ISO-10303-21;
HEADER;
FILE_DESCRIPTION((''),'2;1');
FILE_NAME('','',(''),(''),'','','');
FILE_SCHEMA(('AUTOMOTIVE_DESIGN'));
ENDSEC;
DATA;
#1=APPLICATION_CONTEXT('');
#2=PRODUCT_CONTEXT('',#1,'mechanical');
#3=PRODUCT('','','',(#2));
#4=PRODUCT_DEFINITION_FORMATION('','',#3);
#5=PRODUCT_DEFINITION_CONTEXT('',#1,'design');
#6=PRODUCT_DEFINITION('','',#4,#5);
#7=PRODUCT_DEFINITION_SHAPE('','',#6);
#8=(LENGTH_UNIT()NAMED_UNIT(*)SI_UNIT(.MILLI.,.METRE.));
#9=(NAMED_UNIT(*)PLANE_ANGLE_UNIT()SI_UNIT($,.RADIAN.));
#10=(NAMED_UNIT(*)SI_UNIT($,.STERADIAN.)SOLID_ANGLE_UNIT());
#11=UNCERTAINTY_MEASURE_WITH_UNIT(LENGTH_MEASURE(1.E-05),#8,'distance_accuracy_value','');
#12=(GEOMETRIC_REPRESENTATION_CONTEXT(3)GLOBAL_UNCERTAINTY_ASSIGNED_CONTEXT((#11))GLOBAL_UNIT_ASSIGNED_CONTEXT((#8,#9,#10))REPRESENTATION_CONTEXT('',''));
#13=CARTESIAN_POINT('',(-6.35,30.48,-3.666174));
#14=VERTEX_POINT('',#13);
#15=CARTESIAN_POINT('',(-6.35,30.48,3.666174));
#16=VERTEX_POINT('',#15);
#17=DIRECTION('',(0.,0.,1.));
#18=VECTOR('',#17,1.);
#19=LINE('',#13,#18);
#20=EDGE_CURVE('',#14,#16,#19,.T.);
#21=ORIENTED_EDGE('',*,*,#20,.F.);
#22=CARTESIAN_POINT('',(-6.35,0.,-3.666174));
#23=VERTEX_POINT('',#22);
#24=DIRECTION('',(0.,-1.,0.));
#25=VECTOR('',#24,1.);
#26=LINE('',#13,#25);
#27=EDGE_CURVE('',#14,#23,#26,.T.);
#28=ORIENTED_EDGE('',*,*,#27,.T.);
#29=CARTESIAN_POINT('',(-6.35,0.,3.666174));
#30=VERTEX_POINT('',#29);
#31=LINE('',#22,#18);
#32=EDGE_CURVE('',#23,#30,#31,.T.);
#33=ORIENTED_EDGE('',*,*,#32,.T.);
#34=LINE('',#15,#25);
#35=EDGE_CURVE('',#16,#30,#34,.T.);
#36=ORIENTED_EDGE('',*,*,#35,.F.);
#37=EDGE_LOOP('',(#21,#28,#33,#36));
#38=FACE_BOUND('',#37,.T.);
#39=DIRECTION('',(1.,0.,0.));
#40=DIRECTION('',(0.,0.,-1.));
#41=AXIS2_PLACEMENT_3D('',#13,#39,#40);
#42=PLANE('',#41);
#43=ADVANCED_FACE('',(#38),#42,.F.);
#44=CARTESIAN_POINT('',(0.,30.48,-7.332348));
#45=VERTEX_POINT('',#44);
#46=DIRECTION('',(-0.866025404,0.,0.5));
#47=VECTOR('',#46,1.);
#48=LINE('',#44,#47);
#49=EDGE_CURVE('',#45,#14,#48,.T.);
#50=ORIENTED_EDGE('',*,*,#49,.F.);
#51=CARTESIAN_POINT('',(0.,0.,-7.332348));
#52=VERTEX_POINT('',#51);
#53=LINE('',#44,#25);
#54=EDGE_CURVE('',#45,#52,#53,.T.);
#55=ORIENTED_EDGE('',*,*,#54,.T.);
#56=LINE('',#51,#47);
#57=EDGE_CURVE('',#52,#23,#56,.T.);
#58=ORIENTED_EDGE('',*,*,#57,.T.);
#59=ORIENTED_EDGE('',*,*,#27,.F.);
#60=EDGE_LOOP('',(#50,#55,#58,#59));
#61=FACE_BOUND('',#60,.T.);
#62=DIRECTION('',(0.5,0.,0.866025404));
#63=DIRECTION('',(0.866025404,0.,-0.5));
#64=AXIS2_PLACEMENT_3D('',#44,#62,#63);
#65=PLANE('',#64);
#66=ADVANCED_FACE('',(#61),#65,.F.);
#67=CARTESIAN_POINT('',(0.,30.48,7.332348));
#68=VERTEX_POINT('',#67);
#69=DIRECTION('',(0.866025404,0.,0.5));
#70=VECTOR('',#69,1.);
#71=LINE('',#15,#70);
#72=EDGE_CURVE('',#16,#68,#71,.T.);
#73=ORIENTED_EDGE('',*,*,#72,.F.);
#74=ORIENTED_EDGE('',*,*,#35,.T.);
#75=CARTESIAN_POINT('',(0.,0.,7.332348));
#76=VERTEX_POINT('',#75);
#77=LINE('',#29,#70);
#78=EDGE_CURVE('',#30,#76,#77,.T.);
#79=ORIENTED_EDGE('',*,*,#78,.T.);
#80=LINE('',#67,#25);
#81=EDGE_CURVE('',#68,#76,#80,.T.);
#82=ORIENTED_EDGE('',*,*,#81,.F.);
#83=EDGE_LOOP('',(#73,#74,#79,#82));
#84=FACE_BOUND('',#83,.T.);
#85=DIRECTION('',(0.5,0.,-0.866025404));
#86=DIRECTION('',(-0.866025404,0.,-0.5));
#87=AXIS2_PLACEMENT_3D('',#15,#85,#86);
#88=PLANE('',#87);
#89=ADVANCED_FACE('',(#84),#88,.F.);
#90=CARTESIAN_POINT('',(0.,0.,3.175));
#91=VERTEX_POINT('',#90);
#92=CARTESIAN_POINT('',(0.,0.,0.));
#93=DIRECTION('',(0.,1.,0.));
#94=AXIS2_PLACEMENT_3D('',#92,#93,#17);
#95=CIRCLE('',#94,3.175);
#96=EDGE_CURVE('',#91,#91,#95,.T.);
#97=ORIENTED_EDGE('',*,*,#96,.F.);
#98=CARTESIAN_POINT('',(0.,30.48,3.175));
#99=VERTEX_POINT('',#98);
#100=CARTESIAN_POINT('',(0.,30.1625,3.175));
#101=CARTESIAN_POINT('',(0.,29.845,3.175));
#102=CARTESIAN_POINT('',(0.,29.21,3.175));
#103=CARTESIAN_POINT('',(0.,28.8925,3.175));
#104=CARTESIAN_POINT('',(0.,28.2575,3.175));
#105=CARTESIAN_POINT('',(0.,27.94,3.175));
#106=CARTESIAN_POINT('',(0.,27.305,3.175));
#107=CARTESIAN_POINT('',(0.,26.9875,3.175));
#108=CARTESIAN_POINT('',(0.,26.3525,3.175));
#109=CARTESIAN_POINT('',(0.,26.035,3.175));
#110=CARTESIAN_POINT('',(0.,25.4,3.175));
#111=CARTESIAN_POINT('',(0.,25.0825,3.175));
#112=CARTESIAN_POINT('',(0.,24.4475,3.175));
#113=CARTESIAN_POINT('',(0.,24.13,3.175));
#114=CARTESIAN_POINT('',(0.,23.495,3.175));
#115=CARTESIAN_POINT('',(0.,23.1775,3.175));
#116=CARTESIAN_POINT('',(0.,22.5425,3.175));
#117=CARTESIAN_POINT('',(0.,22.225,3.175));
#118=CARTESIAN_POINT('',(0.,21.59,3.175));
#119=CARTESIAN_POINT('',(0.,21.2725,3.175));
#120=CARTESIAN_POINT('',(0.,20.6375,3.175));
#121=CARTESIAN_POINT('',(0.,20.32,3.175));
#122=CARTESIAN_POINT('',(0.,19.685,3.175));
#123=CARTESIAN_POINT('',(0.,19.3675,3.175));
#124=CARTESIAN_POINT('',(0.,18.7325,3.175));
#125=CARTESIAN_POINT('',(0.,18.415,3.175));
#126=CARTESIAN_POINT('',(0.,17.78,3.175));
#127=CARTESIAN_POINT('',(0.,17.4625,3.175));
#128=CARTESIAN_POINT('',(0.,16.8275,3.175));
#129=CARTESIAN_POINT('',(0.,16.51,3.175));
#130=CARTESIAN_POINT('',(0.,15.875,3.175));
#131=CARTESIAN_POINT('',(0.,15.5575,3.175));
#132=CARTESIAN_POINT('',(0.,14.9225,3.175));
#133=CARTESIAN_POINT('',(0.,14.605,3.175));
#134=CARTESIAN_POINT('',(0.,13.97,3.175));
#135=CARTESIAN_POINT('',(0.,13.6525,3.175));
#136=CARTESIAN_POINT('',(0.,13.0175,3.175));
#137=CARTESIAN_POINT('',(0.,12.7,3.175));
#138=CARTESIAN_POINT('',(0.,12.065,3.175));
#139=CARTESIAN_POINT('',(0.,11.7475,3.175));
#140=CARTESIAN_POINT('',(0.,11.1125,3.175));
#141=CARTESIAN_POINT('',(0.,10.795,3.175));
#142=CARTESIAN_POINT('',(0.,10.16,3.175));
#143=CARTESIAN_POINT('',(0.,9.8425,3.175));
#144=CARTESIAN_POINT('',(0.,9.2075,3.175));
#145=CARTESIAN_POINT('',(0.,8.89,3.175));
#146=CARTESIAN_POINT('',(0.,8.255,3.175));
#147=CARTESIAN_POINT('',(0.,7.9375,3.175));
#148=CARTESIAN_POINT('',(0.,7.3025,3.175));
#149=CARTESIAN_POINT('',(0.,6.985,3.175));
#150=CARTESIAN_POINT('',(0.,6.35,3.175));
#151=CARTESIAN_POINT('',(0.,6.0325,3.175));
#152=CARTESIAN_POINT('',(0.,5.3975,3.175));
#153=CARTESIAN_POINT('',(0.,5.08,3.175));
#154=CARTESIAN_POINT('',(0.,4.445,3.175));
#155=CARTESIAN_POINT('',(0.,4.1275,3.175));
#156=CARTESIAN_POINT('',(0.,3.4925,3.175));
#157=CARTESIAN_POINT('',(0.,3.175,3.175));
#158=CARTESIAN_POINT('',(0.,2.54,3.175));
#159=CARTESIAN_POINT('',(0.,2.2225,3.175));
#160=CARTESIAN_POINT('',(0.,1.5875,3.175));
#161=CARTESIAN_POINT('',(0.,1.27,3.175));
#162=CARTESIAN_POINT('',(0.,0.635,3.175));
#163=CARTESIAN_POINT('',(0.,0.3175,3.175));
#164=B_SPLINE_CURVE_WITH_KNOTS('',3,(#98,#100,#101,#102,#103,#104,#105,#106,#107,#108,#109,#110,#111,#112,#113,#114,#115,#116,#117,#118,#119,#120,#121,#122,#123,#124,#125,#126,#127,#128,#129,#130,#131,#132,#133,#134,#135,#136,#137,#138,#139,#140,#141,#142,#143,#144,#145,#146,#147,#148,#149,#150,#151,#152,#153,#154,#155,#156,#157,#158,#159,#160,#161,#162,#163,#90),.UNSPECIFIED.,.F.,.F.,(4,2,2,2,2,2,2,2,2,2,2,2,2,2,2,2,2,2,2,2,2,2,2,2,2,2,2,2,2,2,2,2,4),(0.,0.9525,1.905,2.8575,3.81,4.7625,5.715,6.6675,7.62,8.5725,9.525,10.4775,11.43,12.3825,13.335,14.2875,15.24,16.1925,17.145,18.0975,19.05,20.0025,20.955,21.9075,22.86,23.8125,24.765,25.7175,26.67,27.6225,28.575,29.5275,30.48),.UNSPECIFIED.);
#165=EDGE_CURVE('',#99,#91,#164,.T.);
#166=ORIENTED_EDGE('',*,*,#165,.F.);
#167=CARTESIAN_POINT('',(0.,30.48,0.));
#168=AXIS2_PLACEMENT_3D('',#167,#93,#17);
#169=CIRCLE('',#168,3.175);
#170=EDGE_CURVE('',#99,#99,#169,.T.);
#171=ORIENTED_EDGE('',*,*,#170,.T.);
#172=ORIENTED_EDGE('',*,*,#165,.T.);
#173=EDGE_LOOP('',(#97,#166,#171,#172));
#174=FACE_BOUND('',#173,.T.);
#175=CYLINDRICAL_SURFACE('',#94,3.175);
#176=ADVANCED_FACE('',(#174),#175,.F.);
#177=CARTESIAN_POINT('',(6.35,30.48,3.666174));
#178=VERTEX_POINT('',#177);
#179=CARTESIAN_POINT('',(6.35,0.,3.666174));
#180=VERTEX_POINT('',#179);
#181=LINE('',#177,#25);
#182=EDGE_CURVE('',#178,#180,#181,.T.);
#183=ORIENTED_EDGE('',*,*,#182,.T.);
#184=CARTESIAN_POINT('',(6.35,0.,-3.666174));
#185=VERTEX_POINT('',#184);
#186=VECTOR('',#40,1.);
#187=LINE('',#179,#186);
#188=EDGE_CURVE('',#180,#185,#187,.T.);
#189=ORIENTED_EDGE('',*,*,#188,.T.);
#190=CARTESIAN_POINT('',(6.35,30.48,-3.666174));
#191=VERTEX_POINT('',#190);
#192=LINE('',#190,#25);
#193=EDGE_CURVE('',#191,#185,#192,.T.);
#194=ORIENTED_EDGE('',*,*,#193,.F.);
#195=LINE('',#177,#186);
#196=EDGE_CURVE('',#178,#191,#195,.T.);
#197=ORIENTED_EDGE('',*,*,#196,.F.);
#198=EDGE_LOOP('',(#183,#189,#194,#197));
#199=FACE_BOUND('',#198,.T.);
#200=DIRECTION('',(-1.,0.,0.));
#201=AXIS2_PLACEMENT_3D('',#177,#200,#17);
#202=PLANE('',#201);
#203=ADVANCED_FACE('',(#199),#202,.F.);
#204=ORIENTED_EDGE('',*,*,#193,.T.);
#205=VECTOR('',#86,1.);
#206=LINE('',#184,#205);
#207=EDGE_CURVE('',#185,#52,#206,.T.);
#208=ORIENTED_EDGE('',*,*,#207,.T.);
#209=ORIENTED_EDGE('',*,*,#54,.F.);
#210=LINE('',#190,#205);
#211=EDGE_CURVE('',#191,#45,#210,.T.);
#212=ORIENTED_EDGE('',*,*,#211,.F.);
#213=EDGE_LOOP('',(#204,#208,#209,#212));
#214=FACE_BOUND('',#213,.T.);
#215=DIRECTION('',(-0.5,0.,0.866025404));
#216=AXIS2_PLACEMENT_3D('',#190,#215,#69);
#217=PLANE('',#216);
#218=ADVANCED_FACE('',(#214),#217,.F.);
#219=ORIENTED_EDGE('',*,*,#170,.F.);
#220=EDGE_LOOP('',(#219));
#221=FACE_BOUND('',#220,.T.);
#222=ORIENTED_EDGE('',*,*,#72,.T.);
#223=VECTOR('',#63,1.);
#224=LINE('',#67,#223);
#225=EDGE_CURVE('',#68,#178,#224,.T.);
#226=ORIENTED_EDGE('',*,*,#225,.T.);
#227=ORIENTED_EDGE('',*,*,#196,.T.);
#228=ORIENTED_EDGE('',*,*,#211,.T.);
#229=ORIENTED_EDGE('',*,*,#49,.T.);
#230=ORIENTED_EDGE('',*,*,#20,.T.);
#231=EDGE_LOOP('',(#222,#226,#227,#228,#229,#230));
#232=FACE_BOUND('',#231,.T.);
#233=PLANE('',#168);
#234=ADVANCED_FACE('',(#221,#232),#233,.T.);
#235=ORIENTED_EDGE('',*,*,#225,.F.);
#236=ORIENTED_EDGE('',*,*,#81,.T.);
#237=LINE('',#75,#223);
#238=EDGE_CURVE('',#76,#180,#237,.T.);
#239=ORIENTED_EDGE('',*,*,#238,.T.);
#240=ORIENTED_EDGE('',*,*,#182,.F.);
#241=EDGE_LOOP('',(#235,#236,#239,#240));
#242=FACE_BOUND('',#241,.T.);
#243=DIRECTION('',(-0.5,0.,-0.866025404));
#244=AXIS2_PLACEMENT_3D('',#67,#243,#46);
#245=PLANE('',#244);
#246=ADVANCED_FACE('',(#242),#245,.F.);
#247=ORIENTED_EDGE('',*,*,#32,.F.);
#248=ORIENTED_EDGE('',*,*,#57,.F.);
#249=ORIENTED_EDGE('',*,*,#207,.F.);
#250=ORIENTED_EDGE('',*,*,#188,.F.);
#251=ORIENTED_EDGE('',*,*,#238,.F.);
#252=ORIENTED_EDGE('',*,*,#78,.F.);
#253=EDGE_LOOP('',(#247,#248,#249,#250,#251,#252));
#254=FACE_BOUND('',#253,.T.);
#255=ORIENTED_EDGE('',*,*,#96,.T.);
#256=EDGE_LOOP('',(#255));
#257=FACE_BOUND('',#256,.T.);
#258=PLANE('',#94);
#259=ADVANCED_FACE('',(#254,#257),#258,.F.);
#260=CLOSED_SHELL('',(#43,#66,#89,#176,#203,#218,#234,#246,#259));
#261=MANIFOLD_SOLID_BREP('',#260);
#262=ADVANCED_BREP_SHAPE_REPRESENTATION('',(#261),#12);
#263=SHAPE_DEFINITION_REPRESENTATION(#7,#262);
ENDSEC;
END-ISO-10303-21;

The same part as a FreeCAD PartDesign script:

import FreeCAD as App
import Part
import Sketcher
from FreeCAD import Vector
Q = App.Units.Quantity

doc = App.newDocument("Part")
body = doc.addObject("PartDesign::Body", "Body")

# Sketch on XZ plane
sketch1 = body.newObject("Sketcher::SketchObject", "Sketch")
sketch1.AttachmentSupport = (doc.getObject("XZ_Plane"), [""])
sketch1.MapMode = "FlatFace"
sketch1.addGeometry([
    Part.LineSegment(Vector(0, 7, 0), Vector(6, 4, 0)),  # 0
    Part.LineSegment(Vector(6, 4, 0), Vector(6, -4, 0)),  # 1
    Part.LineSegment(Vector(6, -4, 0), Vector(0, -7, 0)),  # 2
    Part.LineSegment(Vector(0, -7, 0), Vector(-6, -4, 0)),  # 3
    Part.LineSegment(Vector(-6, -4, 0), Vector(-6, 4, 0)),  # 4
    Part.LineSegment(Vector(-6, 4, 0), Vector(0, 7, 0)),  # 5
], False)
sketch1.addConstraint([
    Sketcher.Constraint("Coincident", 0, 2, 1, 1),
    Sketcher.Constraint("Coincident", 1, 2, 2, 1),
    Sketcher.Constraint("Coincident", 2, 2, 3, 1),
    Sketcher.Constraint("Coincident", 3, 2, 4, 1),
    Sketcher.Constraint("Coincident", 4, 2, 5, 1),
    Sketcher.Constraint("Coincident", 5, 2, 0, 1),
    Sketcher.Constraint("Vertical", 1),
    Sketcher.Constraint("Vertical", 4),
    Sketcher.Constraint("Symmetric", 0, 2, 3, 2, -1, 1),
    Sketcher.Constraint("Symmetric", 2, 2, 5, 2, -1, 1),
    Sketcher.Constraint("PointOnObject", 2, 2, -2),
    Sketcher.Constraint("Parallel", 2, 5),
    Sketcher.Constraint("Horizontal", 1, 2, 3, 2),
    Sketcher.Constraint("Angle", 0, Q("-30 deg")),
    Sketcher.Constraint("DistanceX", 3, 2, 1, 2, Q("0.5 in")),
    Sketcher.Constraint("DistanceY", 1, 2, 1, 1, Q("7.332348 mm")),
])
pad1 = body.newObject("PartDesign::Pad", "Pad")
pad1.Profile = sketch1
pad1.Length = Q("1.2 in")
pad1.Reversed = True

# Sketch on XZ plane
sketch2 = body.newObject("Sketcher::SketchObject", "Sketch001")
sketch2.AttachmentSupport = (doc.getObject("XZ_Plane"), [""])
sketch2.MapMode = "FlatFace"
sketch2.AttachmentOffset = App.Placement(Vector(0, 0, -1.2 * 25.4), App.Rotation())
sketch2.addGeometry(Part.Circle(Vector(0, 0, 0), Vector(0, 0, 1), 3.2), False)
sketch2.addConstraint([
    Sketcher.Constraint("Coincident", 0, 3, -1, 1),
    Sketcher.Constraint("Diameter", 0, Q("0.25 in")),
])
pocket1 = body.newObject("PartDesign::Pocket", "Pocket")
pocket1.Profile = sketch2
pocket1.Type = "ThroughAll"
pocket1.Midplane = True

doc.recompute()
